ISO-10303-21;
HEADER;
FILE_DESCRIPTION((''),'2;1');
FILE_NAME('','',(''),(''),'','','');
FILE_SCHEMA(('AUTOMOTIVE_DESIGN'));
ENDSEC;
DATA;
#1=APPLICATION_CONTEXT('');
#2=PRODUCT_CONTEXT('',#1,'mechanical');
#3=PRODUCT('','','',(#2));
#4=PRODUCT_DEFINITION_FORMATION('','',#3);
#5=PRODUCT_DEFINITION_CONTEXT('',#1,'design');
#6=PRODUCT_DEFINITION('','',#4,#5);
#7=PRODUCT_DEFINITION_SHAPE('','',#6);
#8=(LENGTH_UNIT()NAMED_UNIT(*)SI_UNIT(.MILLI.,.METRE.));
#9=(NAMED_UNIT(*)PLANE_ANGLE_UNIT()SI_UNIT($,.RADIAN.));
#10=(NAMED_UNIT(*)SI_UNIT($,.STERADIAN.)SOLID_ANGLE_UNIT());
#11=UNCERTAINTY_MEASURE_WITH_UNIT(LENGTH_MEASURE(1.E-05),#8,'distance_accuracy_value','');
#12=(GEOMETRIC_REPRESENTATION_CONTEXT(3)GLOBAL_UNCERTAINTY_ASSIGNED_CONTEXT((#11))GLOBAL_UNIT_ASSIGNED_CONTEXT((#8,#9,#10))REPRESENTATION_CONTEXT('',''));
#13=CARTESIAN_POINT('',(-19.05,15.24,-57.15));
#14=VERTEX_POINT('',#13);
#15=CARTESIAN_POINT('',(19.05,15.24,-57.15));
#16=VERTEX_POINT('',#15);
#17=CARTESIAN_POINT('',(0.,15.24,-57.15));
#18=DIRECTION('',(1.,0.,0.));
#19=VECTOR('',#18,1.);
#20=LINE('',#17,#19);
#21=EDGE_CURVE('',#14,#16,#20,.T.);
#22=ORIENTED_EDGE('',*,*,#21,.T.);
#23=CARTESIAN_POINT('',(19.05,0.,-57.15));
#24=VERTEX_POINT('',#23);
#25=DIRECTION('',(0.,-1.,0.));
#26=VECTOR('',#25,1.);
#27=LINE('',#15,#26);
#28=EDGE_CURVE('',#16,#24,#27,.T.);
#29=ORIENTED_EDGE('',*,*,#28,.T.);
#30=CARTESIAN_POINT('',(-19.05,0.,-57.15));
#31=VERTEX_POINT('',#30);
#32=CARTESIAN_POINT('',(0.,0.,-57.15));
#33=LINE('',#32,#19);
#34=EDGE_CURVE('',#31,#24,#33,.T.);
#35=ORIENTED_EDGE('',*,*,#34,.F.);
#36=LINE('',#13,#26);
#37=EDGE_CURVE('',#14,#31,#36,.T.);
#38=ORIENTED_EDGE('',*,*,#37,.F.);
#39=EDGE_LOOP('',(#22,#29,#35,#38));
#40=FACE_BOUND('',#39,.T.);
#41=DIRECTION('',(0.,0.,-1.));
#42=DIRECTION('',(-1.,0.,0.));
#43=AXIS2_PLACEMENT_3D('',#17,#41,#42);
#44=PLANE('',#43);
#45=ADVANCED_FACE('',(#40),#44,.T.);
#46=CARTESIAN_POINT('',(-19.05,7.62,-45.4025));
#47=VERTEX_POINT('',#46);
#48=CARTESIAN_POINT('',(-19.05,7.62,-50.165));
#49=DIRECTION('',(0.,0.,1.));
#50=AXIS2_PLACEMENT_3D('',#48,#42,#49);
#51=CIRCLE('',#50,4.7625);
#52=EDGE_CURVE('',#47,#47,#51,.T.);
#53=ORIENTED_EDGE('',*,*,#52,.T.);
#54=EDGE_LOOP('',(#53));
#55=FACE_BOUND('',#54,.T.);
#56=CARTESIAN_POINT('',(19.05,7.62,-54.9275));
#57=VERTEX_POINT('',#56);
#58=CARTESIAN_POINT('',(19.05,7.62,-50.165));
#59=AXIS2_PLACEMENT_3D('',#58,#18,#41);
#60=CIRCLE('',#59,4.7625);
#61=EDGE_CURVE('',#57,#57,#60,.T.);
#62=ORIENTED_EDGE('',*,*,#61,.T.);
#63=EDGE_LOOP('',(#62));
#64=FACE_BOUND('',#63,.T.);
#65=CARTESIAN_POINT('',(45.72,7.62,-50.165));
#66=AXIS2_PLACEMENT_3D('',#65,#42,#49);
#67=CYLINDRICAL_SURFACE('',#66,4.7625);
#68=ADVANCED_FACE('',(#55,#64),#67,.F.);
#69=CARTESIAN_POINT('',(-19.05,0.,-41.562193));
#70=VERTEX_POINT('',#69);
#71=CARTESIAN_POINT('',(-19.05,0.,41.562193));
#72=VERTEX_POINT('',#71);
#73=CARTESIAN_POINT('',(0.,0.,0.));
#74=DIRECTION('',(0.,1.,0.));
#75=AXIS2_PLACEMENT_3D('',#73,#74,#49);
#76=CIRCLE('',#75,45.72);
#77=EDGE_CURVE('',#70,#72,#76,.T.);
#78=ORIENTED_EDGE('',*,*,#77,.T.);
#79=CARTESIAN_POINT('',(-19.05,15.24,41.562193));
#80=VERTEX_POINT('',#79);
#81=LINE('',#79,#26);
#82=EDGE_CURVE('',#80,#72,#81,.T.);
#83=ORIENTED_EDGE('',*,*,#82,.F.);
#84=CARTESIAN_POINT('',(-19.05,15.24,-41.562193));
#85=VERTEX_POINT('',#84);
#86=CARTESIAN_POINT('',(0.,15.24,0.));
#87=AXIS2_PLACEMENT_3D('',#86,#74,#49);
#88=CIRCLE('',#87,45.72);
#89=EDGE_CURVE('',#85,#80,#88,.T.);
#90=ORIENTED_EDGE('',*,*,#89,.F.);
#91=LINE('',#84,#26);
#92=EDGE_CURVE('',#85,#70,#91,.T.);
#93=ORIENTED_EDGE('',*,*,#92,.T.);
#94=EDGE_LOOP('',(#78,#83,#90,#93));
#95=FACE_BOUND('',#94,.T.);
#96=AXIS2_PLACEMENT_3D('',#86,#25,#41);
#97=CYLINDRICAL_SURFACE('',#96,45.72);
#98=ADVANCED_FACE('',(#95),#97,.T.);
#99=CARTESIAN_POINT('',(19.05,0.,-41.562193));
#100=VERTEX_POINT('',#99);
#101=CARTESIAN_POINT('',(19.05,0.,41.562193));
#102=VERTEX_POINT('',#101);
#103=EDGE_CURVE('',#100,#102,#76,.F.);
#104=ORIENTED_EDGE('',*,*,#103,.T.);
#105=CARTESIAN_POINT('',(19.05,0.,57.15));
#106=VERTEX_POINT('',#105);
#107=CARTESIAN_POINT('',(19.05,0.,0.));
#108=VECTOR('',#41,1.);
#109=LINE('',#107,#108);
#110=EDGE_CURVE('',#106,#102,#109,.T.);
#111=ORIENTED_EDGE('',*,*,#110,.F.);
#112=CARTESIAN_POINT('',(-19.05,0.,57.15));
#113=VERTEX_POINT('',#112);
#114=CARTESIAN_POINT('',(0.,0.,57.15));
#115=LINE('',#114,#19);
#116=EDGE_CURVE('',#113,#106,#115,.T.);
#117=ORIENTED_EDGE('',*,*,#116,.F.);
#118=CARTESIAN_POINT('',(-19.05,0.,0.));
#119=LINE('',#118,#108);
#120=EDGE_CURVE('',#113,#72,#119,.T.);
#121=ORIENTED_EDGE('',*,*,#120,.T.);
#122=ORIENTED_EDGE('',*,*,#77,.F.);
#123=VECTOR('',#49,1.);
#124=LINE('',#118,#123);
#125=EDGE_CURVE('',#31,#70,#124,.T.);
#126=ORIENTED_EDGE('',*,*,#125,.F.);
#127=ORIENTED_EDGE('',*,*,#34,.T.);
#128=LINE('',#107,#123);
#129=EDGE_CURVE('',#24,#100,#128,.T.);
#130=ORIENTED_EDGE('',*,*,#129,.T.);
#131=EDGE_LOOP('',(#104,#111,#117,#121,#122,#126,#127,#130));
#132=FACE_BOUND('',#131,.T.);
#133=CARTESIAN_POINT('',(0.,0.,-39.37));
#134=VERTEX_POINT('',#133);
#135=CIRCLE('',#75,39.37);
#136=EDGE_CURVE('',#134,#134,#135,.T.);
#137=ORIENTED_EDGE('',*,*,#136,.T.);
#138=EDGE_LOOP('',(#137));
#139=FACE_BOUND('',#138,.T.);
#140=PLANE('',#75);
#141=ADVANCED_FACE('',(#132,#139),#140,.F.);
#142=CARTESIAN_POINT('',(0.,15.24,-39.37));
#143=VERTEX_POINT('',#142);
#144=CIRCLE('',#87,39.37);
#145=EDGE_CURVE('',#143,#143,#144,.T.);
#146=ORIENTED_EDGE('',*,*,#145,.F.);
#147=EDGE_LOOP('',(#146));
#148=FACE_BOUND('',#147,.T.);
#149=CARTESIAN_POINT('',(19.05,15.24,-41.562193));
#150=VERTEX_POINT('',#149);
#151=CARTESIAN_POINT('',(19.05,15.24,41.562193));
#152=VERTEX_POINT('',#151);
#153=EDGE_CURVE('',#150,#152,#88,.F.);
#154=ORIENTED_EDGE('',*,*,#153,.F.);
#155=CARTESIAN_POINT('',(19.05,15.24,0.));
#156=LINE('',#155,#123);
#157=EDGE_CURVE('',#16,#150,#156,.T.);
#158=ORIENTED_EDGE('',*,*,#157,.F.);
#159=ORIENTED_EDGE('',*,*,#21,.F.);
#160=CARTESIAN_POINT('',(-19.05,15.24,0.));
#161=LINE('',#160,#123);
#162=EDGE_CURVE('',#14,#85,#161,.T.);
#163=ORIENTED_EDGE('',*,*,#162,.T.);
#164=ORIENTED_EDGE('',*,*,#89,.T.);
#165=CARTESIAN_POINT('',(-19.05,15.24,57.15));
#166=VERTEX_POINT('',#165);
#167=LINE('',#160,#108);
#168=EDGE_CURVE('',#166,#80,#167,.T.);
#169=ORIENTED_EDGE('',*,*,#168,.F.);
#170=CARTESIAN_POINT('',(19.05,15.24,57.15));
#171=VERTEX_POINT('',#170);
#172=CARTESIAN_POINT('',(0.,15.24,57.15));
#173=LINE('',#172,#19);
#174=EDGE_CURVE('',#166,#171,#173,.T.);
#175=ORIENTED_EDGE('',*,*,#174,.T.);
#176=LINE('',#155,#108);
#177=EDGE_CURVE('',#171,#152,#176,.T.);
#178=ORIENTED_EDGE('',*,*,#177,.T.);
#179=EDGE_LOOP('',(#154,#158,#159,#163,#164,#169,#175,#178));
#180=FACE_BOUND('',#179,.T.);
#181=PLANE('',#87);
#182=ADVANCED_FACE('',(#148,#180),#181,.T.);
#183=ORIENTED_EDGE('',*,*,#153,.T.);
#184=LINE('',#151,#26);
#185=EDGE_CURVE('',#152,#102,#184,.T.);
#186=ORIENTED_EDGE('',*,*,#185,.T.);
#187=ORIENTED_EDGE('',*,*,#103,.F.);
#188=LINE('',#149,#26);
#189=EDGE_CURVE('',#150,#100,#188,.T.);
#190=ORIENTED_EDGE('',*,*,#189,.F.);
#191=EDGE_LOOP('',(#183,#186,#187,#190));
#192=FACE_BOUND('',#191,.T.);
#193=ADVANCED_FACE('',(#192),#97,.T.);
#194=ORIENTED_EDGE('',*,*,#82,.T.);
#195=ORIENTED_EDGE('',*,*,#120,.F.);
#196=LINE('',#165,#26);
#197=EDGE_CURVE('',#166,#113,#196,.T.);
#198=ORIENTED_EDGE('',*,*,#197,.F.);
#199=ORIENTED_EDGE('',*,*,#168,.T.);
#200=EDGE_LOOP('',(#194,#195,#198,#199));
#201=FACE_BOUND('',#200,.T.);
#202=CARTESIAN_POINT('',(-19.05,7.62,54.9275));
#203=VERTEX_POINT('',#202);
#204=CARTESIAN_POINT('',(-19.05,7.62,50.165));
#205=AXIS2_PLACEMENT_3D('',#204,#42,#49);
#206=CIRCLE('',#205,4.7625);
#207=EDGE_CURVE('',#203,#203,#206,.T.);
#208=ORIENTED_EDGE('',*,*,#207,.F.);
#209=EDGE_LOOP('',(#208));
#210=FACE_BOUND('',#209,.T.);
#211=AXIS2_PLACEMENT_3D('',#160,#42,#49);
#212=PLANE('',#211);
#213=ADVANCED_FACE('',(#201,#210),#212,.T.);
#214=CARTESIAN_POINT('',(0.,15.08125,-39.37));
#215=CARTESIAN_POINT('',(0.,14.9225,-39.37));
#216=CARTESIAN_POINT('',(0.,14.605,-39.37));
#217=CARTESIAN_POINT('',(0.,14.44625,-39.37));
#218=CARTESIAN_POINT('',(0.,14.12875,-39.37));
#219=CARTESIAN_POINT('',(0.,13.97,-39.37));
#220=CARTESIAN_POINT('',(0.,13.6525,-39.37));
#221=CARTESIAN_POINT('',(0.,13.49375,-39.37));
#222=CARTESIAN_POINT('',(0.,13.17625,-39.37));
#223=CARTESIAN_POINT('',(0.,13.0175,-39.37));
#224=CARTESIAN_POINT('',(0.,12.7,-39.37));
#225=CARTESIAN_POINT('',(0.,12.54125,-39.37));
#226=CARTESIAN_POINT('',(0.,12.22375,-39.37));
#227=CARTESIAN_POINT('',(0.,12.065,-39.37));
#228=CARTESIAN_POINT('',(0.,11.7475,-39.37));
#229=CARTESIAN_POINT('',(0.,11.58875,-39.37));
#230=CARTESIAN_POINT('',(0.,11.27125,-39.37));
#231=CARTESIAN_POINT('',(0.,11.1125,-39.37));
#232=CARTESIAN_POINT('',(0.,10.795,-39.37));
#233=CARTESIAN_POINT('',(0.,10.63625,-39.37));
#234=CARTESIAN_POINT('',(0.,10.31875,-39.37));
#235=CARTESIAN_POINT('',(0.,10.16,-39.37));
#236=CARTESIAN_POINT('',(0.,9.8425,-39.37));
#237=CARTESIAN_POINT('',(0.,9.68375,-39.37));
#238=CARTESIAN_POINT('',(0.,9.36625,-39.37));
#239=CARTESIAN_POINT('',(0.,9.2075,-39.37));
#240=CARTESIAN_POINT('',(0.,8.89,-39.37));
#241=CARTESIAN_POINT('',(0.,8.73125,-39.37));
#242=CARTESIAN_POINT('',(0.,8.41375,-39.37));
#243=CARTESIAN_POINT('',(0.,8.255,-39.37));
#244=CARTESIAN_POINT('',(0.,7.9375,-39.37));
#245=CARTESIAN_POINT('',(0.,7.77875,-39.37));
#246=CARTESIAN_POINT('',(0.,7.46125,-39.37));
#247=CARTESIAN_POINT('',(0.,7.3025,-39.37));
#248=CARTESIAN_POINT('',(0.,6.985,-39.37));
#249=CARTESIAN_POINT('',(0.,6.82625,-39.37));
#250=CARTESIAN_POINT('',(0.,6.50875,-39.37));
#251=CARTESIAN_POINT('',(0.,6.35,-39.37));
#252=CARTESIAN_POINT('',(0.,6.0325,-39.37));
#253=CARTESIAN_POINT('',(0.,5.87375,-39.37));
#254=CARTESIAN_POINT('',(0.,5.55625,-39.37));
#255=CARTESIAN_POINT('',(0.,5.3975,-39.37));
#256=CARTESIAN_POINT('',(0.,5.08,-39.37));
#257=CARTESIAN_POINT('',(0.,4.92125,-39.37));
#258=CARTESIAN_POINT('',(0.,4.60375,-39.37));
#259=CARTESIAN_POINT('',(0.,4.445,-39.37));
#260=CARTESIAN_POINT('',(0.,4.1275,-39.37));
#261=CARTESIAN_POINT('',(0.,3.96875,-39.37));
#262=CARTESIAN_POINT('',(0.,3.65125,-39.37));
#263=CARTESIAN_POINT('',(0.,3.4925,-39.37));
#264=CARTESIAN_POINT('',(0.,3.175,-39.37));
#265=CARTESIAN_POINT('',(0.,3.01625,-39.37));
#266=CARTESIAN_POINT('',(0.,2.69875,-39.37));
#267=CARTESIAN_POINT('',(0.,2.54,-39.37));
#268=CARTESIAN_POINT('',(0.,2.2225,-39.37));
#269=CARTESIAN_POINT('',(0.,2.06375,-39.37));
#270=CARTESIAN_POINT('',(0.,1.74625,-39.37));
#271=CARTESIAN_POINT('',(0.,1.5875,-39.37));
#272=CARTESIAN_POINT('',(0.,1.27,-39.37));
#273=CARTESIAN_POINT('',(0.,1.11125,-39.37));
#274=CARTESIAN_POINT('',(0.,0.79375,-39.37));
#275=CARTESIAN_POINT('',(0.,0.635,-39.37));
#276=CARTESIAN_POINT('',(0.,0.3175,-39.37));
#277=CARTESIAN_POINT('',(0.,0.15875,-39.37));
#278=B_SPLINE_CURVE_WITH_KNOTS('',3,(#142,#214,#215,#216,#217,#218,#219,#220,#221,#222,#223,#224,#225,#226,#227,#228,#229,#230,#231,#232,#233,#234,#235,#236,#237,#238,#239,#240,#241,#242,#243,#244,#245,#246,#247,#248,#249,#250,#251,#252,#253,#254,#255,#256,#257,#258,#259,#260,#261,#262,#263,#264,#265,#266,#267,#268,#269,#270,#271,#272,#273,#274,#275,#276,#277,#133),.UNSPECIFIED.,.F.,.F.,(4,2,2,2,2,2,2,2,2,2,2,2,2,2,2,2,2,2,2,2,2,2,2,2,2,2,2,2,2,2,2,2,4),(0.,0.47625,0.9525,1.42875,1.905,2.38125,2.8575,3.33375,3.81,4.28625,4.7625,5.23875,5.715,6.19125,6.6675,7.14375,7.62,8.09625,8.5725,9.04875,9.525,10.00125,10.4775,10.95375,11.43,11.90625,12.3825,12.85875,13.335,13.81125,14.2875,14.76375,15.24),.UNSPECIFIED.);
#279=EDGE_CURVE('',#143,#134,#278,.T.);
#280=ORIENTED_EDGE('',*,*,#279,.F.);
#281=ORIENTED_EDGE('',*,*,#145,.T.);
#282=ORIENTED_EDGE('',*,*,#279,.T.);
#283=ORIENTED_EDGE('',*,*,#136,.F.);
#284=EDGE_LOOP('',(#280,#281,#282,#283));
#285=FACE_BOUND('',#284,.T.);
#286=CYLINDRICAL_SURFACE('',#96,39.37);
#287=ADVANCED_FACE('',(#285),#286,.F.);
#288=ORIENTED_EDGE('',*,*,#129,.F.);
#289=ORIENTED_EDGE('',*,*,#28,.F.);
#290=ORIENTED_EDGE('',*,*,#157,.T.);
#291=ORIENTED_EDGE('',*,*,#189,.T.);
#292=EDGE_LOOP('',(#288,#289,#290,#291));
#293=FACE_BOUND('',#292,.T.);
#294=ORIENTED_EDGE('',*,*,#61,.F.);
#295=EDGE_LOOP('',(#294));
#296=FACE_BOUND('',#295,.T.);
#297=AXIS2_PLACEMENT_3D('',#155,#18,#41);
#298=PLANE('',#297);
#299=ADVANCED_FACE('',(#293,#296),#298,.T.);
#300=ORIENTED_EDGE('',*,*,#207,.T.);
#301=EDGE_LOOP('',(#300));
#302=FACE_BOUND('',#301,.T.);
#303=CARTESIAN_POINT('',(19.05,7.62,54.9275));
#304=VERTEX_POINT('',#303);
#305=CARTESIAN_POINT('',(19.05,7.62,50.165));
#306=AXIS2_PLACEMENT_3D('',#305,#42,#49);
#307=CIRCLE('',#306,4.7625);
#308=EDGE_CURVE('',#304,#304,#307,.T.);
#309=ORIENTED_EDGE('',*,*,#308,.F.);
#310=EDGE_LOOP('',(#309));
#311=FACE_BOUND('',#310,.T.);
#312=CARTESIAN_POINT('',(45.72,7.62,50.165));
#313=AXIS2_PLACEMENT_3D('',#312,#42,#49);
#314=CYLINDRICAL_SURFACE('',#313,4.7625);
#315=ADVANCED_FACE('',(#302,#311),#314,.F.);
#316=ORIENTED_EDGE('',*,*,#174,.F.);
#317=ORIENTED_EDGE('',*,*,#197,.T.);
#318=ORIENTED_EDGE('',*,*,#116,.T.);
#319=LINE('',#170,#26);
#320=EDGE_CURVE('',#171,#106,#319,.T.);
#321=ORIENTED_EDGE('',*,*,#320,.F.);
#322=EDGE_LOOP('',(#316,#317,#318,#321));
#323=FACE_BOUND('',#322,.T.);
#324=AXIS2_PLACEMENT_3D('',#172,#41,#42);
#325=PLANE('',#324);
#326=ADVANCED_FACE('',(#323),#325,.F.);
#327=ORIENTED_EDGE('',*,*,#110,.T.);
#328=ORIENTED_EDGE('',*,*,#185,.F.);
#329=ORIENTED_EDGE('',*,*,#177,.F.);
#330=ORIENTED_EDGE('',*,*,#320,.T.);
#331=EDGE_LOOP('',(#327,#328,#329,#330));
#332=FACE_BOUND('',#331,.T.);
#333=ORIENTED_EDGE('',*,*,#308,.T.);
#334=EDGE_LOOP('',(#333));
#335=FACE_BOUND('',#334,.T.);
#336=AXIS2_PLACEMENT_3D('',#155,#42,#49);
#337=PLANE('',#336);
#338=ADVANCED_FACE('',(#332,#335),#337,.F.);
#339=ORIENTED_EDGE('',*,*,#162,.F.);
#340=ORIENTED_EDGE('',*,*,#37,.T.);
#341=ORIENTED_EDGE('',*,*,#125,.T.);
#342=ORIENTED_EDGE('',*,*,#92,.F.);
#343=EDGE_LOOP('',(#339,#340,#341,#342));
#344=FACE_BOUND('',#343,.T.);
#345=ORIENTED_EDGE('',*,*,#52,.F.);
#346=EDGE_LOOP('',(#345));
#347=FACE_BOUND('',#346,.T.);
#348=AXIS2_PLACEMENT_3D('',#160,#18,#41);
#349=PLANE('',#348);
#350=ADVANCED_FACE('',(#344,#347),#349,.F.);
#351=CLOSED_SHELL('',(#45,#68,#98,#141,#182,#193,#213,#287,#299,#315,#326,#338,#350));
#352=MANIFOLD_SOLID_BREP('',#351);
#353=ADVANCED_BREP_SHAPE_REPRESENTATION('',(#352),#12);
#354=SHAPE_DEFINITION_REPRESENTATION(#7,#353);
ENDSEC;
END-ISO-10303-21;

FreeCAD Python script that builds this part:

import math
import FreeCAD as App
import Part
import Sketcher
Q = App.Units.Quantity

doc = App.newDocument("Part")
params = doc.addObject("Spreadsheet::Sheet", "Params")
for row, (alias, value) in enumerate([
    ("sketch1_diameter", "3.1 in"),
    ("sketch1_radius", "1.8 in"),
    ("sketch1_width", "1.5 in"),
    ("pad1_length", "0.6 in"),
    ("sketch2_diameter", "0.375 in"),
], start=1):
    params.set(f"A{row}", alias)
    params.set(f"B{row}", "=" + value)
    params.setAlias(f"B{row}", alias)

body = doc.addObject("PartDesign::Body", "Body")

# Sketch on XZ plane
sketch1 = body.newObject("Sketcher::SketchObject", "Sketch")
sketch1.AttachmentSupport = (doc.getObject("XZ_Plane"), [""])
sketch1.MapMode = "FlatFace"
sketch1.addGeometry([
    Part.LineSegment(App.Vector(19, -57, 0), App.Vector(-19, -57, 0)),  # 0
    Part.LineSegment(App.Vector(-19, -57, 0), App.Vector(-19, -42, 0)),  # 1
    Part.ArcOfCircle(Part.Circle(App.Vector(0, 0, 0), App.Vector(0, 0, 1), 46), math.radians(115), math.radians(245)),  # 2
    Part.LineSegment(App.Vector(-19, 42, 0), App.Vector(-19, 57, 0)),  # 3
    Part.LineSegment(App.Vector(-19, 57, 0), App.Vector(19, 57, 0)),  # 4
    Part.LineSegment(App.Vector(19, 57, 0), App.Vector(19, 42, 0)),  # 5
    Part.ArcOfCircle(Part.Circle(App.Vector(0, 0, 0), App.Vector(0, 0, 1), 46), math.radians(-65), math.radians(65)),  # 6
    Part.LineSegment(App.Vector(19, -42, 0), App.Vector(19, -57, 0)),  # 7
    Part.Circle(App.Vector(0, 0, 0), App.Vector(0, 0, 1), 39),  # 8
], False)
sketch1.addConstraint([
    Sketcher.Constraint("Coincident", 0, 2, 1, 1),
    Sketcher.Constraint("Coincident", 1, 2, 2, 2),
    Sketcher.Constraint("Coincident", 2, 1, 3, 1),
    Sketcher.Constraint("Coincident", 3, 2, 4, 1),
    Sketcher.Constraint("Coincident", 4, 2, 5, 1),
    Sketcher.Constraint("Coincident", 5, 2, 6, 2),
    Sketcher.Constraint("Coincident", 6, 1, 7, 1),
    Sketcher.Constraint("Coincident", 7, 2, 0, 1),
    Sketcher.Constraint("Horizontal", 0),
    Sketcher.Constraint("Vertical", 1),
    Sketcher.Constraint("Vertical", 3),
    Sketcher.Constraint("Horizontal", 4),
    Sketcher.Constraint("Vertical", 5),
    Sketcher.Constraint("Vertical", 7),
    Sketcher.Constraint("Coincident", 2, 3, -1, 1),
    Sketcher.Constraint("Coincident", 6, 3, -1, 1),
    Sketcher.Constraint("Coincident", 8, 3, -1, 1),
    Sketcher.Constraint("Equal", 2, 6),
    Sketcher.Constraint("Symmetric", 0, 2, 4, 2, -1, 1),
    Sketcher.Constraint("Horizontal", 2, 1, 5, 2),
    Sketcher.Constraint("Horizontal", 1, 2, 6, 1),
    Sketcher.Constraint("Diameter", 8, Q("3.1 in")),
    Sketcher.Constraint("Radius", 2, Q("1.8 in")),
    Sketcher.Constraint("DistanceX", 0, 2, 0, 1, Q("1.5 in")),
    Sketcher.Constraint("DistanceY", 0, 2, -1, 1, Q("2.25 in")),
])
sketch1.setExpression("Constraints[21]", "Params.sketch1_diameter")
sketch1.setExpression("Constraints[22]", "Params.sketch1_radius")
sketch1.setExpression("Constraints[23]", "Params.sketch1_width")
pad1 = body.newObject("PartDesign::Pad", "Pad")
pad1.Profile = sketch1
pad1.setExpression("Length", "Params.pad1_length")
pad1.Reversed = True

# Sketch on YZ plane
sketch2 = body.newObject("Sketcher::SketchObject", "Sketch001")
sketch2.AttachmentSupport = (doc.getObject("YZ_Plane"), [""])
sketch2.MapMode = "FlatFace"
sketch2.AttachmentOffset = App.Placement(App.Vector(0, 0, -0.75 * 25.4), App.Rotation())
sketch2.addGeometry([
    Part.Circle(App.Vector(7.6, 50.2, 0), App.Vector(0, 0, 1), 4.8),
    Part.Circle(App.Vector(7.6, -50.2, 0), App.Vector(0, 0, 1), 4.8),
], False)
sketch2.addConstraint([
    Sketcher.Constraint("Equal", 0, 1),
    Sketcher.Constraint("Symmetric", 0, 3, 1, 3, -1),
    Sketcher.Constraint("Diameter", 0, Q("0.375 in")),
    Sketcher.Constraint("DistanceX", -1, 1, 0, 3, Q("0.3 in")),
    Sketcher.Constraint("DistanceY", 1, 3, 0, 3, Q("3.95 in")),
])
sketch2.setExpression("Constraints[2]", "Params.sketch2_diameter")
pocket1 = body.newObject("PartDesign::Pocket", "Pocket")
pocket1.Profile = sketch2
pocket1.Type = "ThroughAll"
pocket1.Reversed = True

doc.recompute()
